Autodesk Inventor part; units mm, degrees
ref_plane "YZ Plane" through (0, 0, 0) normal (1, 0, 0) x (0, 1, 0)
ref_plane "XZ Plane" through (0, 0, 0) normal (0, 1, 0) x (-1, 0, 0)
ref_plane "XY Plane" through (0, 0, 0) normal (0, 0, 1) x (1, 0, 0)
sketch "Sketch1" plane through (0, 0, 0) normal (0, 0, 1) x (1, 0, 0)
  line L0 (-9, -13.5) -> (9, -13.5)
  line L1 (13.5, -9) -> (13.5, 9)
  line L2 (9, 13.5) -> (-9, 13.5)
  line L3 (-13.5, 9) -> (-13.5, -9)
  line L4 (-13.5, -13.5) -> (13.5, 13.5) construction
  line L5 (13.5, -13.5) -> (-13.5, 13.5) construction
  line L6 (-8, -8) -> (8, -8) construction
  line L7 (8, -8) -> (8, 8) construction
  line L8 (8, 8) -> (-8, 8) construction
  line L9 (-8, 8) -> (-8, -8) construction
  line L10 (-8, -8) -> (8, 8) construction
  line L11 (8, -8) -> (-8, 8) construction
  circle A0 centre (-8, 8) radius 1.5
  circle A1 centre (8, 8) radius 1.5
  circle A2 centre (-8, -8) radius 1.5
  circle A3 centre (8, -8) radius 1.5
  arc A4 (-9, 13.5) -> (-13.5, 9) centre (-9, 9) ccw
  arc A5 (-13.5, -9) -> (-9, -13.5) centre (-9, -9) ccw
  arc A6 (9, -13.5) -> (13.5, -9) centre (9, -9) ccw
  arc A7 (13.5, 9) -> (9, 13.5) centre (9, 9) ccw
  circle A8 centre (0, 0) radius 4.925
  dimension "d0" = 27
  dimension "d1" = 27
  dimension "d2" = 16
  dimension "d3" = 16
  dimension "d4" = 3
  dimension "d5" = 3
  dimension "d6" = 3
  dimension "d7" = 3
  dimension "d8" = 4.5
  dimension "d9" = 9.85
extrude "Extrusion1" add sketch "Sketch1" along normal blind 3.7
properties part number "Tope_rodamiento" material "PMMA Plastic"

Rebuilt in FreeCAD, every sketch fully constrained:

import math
import FreeCAD as App
import Part
import Sketcher

doc = App.newDocument("Part")
body = doc.addObject("PartDesign::Body", "Body")

sketch1 = body.newObject("Sketcher::SketchObject", "Sketch")
sketch1.AttachmentSupport = (doc.getObject("XY_Plane"), [""])
sketch1.MapMode = "FlatFace"
sketch1.addGeometry([
    Part.ArcOfCircle(Part.Circle(App.Vector(-9, -9, 0), App.Vector(0, 0, 1), 4.5), math.radians(180), math.radians(270)),
    Part.LineSegment(App.Vector(-9, -13.5, 0), App.Vector(9, -13.5, 0)),
    Part.ArcOfCircle(Part.Circle(App.Vector(9, -9, 0), App.Vector(0, 0, 1), 4.5), math.radians(-90), math.radians(0)),
    Part.LineSegment(App.Vector(13.5, -9, 0), App.Vector(13.5, 9, 0)),
    Part.ArcOfCircle(Part.Circle(App.Vector(9, 9, 0), App.Vector(0, 0, 1), 4.5), math.radians(0), math.radians(90)),
    Part.LineSegment(App.Vector(9, 13.5, 0), App.Vector(-9, 13.5, 0)),
    Part.ArcOfCircle(Part.Circle(App.Vector(-9, 9, 0), App.Vector(0, 0, 1), 4.5), math.radians(90), math.radians(180)),
    Part.LineSegment(App.Vector(-13.5, 9, 0), App.Vector(-13.5, -9, 0)),
    Part.Circle(App.Vector(-8, -8, 0), App.Vector(0, 0, 1), 1.5),
    Part.Circle(App.Vector(8, -8, 0), App.Vector(0, 0, 1), 1.5),
    Part.Circle(App.Vector(-8, 8, 0), App.Vector(0, 0, 1), 1.5),
    Part.Circle(App.Vector(0, 0, 0), App.Vector(0, 0, 1), 4.925),
    Part.Circle(App.Vector(8, 8, 0), App.Vector(0, 0, 1), 1.5),
], False)
sketch1.addConstraint([
    Sketcher.Constraint("Tangent", 0, 2, 1, 1),
    Sketcher.Constraint("Tangent", 1, 2, 2, 1),
    Sketcher.Constraint("Tangent", 2, 2, 3, 1),
    Sketcher.Constraint("Tangent", 3, 2, 4, 1),
    Sketcher.Constraint("Tangent", 4, 2, 5, 1),
    Sketcher.Constraint("Tangent", 5, 2, 6, 1),
    Sketcher.Constraint("Tangent", 6, 2, 7, 1),
    Sketcher.Constraint("Tangent", 7, 2, 0, 1),
    Sketcher.Constraint("Horizontal", 1),
    Sketcher.Constraint("Vertical", 3),
    Sketcher.Constraint("Horizontal", 5),
    Sketcher.Constraint("Vertical", 7),
    Sketcher.Constraint("Coincident", 11, 3, -1, 1),
    Sketcher.Constraint("Equal", 0, 2),
    Sketcher.Constraint("Equal", 2, 4),
    Sketcher.Constraint("Equal", 4, 6),
    Sketcher.Constraint("Equal", 8, 9),
    Sketcher.Constraint("Equal", 9, 10),
    Sketcher.Constraint("Equal", 10, 12),
    Sketcher.Constraint("Symmetric", 0, 3, 4, 3, -1, 1),
    Sketcher.Constraint("Symmetric", 9, 3, 10, 3, -1, 1),
    Sketcher.Constraint("Symmetric", 8, 3, 12, 3, -1, 1),
    Sketcher.Constraint("Symmetric", 8, 3, 9, 3, -2),
    Sketcher.Constraint("Equal", 5, 3),
    Sketcher.Constraint("Diameter", 8, 3.0),
    Sketcher.Constraint("Radius", 0, 4.5),
    Sketcher.Constraint("Diameter", 11, 9.85),
    Sketcher.Constraint("DistanceX", 8, 3, 9, 3, 16.0),
    Sketcher.Constraint("DistanceY", 8, 3, 10, 3, 16.0),
    Sketcher.Constraint("DistanceX", 1, 1, 1, 2, 18.0),
])
pad1 = body.newObject("PartDesign::Pad", "Pad")
pad1.Profile = sketch1
pad1.Length = 3.7

doc.recompute()
